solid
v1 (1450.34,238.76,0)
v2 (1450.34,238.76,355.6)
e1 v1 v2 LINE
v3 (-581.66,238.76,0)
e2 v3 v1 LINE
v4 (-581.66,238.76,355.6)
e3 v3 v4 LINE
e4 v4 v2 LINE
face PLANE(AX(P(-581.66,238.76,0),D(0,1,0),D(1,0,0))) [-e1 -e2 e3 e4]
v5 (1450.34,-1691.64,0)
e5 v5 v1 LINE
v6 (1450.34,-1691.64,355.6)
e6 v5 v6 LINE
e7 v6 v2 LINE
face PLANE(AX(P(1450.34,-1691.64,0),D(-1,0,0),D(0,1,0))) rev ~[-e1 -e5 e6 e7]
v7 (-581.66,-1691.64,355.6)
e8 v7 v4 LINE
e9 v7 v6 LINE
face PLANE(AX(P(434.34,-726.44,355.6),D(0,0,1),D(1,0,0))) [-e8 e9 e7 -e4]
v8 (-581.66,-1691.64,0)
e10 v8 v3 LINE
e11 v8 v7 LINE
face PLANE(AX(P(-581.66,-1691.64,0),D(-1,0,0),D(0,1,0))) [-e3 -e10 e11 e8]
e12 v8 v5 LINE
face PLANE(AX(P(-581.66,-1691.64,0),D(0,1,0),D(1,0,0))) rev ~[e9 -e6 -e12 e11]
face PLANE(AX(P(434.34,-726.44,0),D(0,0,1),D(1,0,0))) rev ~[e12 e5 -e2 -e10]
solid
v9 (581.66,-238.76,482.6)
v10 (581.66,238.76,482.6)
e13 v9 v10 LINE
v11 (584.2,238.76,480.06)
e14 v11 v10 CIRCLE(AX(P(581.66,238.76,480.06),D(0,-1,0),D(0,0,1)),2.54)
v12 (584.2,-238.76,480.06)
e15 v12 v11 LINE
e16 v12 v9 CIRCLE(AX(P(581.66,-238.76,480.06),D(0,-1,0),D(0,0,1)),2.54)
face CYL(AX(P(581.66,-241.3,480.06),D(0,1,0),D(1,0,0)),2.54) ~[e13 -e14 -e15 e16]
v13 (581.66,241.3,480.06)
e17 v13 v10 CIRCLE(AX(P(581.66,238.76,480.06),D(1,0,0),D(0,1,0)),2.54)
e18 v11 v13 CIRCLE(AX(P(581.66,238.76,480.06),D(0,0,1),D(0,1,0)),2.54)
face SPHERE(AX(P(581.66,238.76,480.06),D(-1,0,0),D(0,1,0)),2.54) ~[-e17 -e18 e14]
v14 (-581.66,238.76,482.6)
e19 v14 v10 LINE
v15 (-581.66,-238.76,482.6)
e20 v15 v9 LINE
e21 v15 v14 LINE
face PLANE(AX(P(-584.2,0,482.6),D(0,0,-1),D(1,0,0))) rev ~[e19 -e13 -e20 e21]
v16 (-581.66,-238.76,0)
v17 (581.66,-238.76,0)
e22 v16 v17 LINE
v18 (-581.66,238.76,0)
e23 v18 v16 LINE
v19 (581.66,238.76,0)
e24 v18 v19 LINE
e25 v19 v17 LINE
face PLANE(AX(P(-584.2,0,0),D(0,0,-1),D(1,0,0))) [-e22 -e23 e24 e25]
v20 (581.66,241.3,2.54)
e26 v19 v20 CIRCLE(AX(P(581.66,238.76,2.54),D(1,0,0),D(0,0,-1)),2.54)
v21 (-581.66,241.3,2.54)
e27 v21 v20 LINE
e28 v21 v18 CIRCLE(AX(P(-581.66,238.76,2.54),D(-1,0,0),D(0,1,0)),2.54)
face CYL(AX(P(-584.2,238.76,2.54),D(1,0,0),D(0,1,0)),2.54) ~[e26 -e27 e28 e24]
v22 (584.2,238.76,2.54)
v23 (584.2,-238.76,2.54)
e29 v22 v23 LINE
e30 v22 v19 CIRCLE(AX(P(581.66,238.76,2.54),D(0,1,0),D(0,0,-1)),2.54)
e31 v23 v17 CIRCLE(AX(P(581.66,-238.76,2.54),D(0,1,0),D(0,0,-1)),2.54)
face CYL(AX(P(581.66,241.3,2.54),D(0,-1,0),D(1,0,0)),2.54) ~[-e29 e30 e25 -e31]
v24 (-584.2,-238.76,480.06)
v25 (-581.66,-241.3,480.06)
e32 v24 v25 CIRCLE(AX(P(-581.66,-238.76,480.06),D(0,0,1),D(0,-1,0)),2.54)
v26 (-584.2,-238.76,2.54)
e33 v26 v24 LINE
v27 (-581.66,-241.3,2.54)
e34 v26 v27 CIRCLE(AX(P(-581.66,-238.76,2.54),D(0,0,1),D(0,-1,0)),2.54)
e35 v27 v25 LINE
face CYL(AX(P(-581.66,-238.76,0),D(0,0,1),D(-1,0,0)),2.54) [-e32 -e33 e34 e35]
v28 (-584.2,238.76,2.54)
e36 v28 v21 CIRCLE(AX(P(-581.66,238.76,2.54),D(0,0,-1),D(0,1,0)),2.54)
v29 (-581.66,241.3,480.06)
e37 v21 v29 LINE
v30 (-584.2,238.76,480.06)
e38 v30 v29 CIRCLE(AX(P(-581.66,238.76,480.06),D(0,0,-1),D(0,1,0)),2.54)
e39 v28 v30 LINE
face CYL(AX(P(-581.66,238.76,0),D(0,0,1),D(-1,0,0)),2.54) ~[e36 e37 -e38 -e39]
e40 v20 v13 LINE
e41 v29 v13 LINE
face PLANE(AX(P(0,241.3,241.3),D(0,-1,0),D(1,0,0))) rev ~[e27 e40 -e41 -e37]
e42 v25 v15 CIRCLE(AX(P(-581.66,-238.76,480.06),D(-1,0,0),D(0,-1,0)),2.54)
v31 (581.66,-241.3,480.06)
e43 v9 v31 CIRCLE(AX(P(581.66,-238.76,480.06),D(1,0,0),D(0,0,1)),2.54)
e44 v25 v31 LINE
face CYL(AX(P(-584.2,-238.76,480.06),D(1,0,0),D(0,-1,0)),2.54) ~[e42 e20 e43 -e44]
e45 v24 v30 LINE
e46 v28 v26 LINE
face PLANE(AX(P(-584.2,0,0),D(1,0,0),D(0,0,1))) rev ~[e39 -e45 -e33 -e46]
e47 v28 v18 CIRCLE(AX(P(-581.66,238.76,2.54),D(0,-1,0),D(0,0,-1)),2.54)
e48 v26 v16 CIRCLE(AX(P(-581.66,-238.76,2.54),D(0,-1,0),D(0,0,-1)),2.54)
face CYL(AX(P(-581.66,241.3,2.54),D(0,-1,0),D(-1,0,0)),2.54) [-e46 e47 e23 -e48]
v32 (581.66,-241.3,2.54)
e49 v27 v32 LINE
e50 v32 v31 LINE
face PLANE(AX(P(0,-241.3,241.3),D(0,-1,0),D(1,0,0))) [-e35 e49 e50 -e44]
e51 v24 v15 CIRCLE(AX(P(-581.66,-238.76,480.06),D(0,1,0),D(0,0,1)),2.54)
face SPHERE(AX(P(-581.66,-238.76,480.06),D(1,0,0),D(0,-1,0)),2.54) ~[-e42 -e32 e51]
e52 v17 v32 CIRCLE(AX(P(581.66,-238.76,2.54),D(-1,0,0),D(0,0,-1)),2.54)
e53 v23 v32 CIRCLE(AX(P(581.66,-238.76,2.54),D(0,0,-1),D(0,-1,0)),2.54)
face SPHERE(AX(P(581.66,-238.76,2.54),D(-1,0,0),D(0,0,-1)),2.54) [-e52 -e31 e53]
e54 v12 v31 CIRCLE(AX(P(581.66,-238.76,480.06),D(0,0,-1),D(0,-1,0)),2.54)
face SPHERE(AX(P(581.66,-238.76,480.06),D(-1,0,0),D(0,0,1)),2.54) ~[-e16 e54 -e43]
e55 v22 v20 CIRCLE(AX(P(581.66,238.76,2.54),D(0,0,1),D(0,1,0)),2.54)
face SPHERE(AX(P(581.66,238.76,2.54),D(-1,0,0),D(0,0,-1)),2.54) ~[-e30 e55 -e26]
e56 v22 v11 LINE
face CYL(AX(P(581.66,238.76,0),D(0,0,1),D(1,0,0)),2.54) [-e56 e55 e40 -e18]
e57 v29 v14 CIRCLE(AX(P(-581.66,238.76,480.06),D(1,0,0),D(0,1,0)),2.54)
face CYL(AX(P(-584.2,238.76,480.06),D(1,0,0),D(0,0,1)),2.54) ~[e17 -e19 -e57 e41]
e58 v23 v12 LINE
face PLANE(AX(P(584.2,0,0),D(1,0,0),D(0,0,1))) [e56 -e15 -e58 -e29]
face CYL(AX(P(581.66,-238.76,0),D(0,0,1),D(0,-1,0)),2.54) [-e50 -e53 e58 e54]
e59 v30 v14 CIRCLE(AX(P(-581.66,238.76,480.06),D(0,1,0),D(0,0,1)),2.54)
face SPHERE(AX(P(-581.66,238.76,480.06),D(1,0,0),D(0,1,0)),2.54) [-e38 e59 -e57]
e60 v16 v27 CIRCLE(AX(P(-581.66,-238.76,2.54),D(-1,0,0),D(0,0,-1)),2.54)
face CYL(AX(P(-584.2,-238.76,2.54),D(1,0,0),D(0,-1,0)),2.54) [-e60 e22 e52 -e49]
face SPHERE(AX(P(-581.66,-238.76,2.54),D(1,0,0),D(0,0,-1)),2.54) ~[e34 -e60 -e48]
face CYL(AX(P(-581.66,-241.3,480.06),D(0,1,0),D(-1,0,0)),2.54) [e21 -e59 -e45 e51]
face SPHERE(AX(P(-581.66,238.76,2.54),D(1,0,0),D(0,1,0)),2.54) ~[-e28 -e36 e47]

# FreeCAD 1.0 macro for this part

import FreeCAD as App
import Part
import Sketcher

V = App.Vector
Q = App.Units.Quantity

doc = App.newDocument("Part")
body = doc.addObject("PartDesign::Body", "Body")

sketch1 = body.newObject("Sketcher::SketchObject", "Sketch")
sketch1.AttachmentSupport = (doc.getObject("XZ_Plane"), [""])
sketch1.MapMode = "FlatFace"
sketch1.addGeometry([
    Part.LineSegment(V(-584.2, 482.6, 0), V(-584.2, 0, 0)),
    Part.LineSegment(V(-584.2, 0, 0), V(584.2, 0, 0)),
    Part.LineSegment(V(584.2, 0, 0), V(584.2, 482.6, 0)),
    Part.LineSegment(V(584.2, 482.6, 0), V(-584.2, 482.6, 0)),
], False)
sketch1.addConstraint([
    Sketcher.Constraint("Coincident", 0, 2, 1, 1),
    Sketcher.Constraint("Coincident", 1, 2, 2, 1),
    Sketcher.Constraint("Coincident", 2, 2, 3, 1),
    Sketcher.Constraint("Coincident", 3, 2, 0, 1),
    Sketcher.Constraint("Vertical", 0),
    Sketcher.Constraint("Horizontal", 1),
    Sketcher.Constraint("Vertical", 2),
    Sketcher.Constraint("Horizontal", 3),
    Sketcher.Constraint("Symmetric", 0, 2, 1, 2, -1, 1),
    Sketcher.Constraint("DistanceX", 1, 1, 1, 2, Q("46 in")),
    Sketcher.Constraint("DistanceY", 0, 2, 0, 1, Q("19 in")),
])
pad1 = body.newObject("PartDesign::Pad", "Pad")
pad1.Profile = sketch1
pad1.Length = Q("19 in")
pad1.Midplane = True
doc.recompute()

fillet = body.newObject("PartDesign::Fillet", "Fillet")
fillet.Base = (pad1, ["Edge1"])
fillet.UseAllEdges = True
fillet.Radius = Q("0.1 in")
body2 = doc.addObject("PartDesign::Body", "Body001")

sketch2 = body2.newObject("Sketcher::SketchObject", "Sketch001")
sketch2.AttachmentSupport = (doc.getObject("XY_Plane001"), [""])
sketch2.MapMode = "FlatFace"
sketch2.addGeometry([
    Part.LineSegment(V(-581.66, 238.76, 0), V(-581.66, -1691.64, 0)),
    Part.LineSegment(V(-581.66, -1691.64, 0), V(1450.34, -1691.64, 0)),
    Part.LineSegment(V(1450.34, -1691.64, 0), V(1450.34, 238.76, 0)),
    Part.LineSegment(V(1450.34, 238.76, 0), V(-581.66, 238.76, 0)),
], False)
sketch2.addConstraint([
    Sketcher.Constraint("Coincident", 0, 2, 1, 1),
    Sketcher.Constraint("Coincident", 1, 2, 2, 1),
    Sketcher.Constraint("Coincident", 2, 2, 3, 1),
    Sketcher.Constraint("Coincident", 3, 2, 0, 1),
    Sketcher.Constraint("Vertical", 0),
    Sketcher.Constraint("Horizontal", 1),
    Sketcher.Constraint("Vertical", 2),
    Sketcher.Constraint("Horizontal", 3),
    Sketcher.Constraint("DistanceX", 1, 1, 1, 2, Q("80 in")),
    Sketcher.Constraint("DistanceY", 0, 2, 0, 1, Q("76 in")),
    Sketcher.Constraint("DistanceX", 0, 2, -1, 1, Q("22.9 in")),
    Sketcher.Constraint("DistanceY", 0, 2, -1, 1, Q("66.6 in")),
])
pad2 = body2.newObject("PartDesign::Pad", "Pad001")
pad2.Profile = sketch2
pad2.Length = Q("14 in")

doc.recompute()
